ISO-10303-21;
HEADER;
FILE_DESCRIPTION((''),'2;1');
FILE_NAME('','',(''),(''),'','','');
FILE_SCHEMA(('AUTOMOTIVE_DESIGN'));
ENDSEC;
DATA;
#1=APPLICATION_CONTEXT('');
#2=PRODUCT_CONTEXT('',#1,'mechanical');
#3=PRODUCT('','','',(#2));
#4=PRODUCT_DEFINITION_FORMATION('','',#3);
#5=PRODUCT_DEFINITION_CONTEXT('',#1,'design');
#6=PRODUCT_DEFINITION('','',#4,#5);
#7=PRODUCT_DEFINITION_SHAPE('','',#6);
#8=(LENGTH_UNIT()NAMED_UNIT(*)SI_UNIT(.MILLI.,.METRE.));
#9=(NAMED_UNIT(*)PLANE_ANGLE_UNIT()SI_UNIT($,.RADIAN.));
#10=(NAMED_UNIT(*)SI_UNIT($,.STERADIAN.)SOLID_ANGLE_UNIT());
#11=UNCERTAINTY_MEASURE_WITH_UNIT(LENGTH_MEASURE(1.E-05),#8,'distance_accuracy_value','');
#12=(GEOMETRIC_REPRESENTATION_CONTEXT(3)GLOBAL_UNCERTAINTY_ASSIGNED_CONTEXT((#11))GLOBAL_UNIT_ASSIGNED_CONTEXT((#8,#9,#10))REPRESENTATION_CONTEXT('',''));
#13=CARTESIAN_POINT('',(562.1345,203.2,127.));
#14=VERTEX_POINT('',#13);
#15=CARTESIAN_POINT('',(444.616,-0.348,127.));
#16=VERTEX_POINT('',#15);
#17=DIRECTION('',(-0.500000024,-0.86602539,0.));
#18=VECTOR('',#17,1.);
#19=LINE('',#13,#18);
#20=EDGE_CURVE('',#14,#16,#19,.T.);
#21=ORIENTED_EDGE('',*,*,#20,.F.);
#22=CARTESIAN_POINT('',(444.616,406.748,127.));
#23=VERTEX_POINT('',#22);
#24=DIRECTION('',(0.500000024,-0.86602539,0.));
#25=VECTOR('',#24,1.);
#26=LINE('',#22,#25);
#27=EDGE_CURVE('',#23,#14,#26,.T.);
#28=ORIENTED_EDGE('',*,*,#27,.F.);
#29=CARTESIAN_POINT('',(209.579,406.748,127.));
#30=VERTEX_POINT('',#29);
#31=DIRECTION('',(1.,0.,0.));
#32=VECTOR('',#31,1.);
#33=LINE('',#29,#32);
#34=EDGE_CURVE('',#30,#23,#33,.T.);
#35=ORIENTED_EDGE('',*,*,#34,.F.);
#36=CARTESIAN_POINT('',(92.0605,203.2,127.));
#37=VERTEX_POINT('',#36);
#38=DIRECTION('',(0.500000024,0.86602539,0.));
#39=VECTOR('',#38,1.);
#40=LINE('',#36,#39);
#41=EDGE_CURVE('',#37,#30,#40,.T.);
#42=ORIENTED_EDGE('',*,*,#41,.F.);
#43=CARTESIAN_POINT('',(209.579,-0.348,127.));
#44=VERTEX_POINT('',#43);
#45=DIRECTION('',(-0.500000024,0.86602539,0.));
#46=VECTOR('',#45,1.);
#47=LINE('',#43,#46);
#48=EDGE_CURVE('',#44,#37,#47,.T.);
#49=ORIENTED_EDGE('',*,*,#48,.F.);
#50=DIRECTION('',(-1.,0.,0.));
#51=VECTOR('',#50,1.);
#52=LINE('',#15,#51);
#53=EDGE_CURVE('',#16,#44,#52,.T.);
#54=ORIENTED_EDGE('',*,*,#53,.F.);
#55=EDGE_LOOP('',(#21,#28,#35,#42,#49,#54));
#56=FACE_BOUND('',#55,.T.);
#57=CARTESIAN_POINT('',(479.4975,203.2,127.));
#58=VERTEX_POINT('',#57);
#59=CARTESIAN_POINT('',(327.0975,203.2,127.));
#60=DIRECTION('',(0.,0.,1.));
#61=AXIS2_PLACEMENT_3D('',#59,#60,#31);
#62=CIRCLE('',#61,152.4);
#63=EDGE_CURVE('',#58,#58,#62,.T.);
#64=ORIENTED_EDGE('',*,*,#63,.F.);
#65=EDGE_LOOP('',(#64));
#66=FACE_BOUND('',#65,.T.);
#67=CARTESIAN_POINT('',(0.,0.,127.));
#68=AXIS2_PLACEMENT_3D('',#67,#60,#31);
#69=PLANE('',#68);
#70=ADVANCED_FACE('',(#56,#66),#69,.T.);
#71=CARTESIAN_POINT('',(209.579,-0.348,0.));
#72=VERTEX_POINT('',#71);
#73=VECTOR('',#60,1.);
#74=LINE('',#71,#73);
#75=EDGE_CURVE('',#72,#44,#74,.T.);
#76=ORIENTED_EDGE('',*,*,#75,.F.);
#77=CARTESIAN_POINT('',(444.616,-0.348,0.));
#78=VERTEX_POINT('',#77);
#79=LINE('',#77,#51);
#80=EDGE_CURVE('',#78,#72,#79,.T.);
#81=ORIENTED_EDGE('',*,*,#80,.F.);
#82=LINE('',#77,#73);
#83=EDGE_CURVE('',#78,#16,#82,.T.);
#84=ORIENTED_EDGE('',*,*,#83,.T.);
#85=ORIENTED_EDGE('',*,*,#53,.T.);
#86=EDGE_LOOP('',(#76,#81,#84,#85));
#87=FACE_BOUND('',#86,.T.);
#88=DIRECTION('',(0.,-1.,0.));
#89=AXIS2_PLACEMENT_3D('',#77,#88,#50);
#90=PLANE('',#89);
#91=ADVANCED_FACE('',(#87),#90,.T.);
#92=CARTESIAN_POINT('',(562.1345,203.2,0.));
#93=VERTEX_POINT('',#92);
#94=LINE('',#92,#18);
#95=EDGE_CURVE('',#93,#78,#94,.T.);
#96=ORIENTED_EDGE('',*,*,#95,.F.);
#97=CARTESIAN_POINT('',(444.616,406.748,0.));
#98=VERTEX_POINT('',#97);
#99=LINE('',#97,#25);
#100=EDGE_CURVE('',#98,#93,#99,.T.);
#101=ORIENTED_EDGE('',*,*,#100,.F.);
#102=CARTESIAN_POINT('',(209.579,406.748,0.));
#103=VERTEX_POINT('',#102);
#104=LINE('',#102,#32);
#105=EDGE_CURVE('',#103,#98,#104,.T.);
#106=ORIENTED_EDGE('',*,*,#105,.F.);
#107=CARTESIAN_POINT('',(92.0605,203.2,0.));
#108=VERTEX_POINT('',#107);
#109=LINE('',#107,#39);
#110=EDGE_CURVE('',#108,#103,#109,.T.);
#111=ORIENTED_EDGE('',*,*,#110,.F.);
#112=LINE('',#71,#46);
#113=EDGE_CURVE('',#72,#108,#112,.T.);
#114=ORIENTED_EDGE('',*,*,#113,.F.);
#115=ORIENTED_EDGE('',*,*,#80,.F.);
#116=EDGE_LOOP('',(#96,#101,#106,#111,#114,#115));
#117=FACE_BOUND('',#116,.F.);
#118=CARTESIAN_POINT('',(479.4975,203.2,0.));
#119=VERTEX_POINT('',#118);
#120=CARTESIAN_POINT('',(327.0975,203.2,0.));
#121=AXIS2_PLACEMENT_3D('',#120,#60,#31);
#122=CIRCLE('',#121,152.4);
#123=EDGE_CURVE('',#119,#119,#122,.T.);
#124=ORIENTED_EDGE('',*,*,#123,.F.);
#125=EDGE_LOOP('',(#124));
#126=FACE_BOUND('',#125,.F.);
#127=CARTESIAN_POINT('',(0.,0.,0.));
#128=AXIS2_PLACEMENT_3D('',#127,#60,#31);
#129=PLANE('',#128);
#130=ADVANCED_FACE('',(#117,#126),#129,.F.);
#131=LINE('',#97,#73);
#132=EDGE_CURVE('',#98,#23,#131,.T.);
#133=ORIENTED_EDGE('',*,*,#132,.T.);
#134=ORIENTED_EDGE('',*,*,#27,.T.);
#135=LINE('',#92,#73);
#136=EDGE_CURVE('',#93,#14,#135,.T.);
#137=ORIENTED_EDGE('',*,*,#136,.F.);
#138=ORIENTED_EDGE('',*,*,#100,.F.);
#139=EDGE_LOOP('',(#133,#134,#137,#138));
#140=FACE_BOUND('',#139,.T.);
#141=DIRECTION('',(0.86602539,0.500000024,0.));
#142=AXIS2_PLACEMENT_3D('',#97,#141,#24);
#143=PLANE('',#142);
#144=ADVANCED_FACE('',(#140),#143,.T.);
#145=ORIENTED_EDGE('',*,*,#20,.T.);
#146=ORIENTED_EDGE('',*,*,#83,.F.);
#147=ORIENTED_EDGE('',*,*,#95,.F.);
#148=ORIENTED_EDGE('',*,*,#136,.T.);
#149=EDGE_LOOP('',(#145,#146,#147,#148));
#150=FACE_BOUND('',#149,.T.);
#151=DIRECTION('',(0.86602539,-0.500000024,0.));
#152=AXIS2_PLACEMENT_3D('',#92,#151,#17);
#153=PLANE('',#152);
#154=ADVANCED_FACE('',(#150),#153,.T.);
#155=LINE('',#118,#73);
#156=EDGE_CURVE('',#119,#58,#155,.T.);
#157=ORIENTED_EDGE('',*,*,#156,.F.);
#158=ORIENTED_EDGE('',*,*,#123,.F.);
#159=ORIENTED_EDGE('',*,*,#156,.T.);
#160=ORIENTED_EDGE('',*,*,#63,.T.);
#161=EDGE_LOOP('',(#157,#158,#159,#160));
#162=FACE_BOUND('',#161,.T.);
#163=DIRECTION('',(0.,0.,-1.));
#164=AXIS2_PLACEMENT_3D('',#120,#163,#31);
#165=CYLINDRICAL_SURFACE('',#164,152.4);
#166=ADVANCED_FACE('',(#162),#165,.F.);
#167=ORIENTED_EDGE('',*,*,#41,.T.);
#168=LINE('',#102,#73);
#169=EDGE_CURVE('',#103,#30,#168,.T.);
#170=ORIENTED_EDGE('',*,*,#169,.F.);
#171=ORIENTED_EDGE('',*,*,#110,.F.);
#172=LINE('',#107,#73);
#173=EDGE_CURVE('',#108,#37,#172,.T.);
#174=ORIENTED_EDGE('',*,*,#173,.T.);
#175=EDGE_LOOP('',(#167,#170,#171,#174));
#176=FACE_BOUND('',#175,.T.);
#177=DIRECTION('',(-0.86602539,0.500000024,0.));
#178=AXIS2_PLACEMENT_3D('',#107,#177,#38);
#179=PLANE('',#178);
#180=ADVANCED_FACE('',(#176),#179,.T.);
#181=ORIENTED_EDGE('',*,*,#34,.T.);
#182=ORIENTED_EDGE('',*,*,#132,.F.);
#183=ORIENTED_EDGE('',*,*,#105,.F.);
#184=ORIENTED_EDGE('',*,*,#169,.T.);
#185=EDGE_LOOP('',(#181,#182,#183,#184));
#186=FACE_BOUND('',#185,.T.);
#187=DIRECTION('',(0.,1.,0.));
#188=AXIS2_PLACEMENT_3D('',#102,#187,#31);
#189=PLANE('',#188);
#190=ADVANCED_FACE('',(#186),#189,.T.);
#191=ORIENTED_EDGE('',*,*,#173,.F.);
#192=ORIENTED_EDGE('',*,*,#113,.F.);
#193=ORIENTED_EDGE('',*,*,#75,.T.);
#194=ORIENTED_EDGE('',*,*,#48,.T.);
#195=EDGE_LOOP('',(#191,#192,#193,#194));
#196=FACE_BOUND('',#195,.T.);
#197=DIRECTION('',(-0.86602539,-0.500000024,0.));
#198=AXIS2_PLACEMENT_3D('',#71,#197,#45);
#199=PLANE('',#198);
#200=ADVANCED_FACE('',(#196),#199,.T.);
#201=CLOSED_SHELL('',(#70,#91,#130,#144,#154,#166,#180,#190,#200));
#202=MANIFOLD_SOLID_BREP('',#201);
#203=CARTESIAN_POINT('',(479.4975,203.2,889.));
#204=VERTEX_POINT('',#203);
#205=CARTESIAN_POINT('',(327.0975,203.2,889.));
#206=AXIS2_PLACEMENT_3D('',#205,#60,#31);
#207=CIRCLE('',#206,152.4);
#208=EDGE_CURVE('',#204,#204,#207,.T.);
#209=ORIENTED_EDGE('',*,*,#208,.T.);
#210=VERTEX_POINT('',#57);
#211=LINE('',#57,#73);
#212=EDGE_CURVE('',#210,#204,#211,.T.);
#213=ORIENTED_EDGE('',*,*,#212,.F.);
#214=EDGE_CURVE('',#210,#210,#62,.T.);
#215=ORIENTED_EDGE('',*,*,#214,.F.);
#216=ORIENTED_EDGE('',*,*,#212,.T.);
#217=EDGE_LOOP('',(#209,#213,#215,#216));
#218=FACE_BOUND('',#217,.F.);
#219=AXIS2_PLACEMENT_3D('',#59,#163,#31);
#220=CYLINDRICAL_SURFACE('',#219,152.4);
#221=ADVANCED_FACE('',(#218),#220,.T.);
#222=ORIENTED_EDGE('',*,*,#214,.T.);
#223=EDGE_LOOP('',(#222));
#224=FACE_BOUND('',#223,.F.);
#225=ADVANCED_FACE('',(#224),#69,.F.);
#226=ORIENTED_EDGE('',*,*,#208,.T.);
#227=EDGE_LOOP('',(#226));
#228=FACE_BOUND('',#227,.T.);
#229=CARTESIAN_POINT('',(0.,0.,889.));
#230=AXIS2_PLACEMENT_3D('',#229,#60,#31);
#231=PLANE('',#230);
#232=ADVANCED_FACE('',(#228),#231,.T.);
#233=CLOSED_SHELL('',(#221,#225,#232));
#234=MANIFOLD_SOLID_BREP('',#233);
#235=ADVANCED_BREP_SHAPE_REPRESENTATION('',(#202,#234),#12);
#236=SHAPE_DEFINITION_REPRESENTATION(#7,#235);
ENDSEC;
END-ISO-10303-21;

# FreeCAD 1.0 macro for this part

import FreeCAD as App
import Part
import Sketcher
from FreeCAD import Vector
Q = App.Units.Quantity


def add_polygon(sketch, points):
    """Adds a closed chain of lines whose ends are joined by coincident constraints."""
    first, n = sketch.GeometryCount, len(points)
    for a, b in zip(points, points[1:] + points[:1]):
        sketch.addGeometry(Part.LineSegment(App.Vector(*a, 0), App.Vector(*b, 0)), False)
    for i in range(n):
        sketch.addConstraint(Sketcher.Constraint("Coincident", first + i, 2, first + (i + 1) % n, 1))

doc = App.newDocument("Part")
params = doc.addObject("Spreadsheet::Sheet", "Params")
for row, (alias, value) in enumerate([
    ("sketch1_diameter", "12 in"),
    ("pad1_length", "5 in"),
    ("sketch2_diameter", "12 in"),
    ("pad2_length", "30 in"),
], start=1):
    params.set(f"A{row}", alias)
    params.set(f"B{row}", "=" + value)
    params.setAlias(f"B{row}", alias)

body = doc.addObject("PartDesign::Body", "Body")
body.AllowCompound = True

# Sketch on XY plane
sketch1 = doc.addObject("Sketcher::SketchObject", "Sketch")
body.addObject(sketch1)
sketch1.AttachmentSupport = (doc.XY_Plane, [""])
sketch1.MapMode = "FlatFace"
add_polygon(sketch1, [(444.616, -0.348), (562.1345, 203.2), (444.616, 406.748), (209.579, 406.748), (92.0605, 203.2), (209.579, -0.348)])  # lines 0-5
sketch1.addGeometry(Part.Circle(Vector(327.0975, 203.2, 0), Vector(0, 0, 1), 152.4), False)  # 6
sketch1.addConstraint([
    Sketcher.Constraint("Horizontal", 2),
    Sketcher.Constraint("Horizontal", 5),
    Sketcher.Constraint("Parallel", 0, 3),
    Sketcher.Constraint("Parallel", 1, 4),
    Sketcher.Constraint("Horizontal", 6, 3, 0, 2),
    Sketcher.Constraint("Horizontal", 0, 2, 3, 2),
    Sketcher.Constraint("Vertical", 2, 2, 4, 2),
    Sketcher.Constraint("Vertical", 1, 2, 5, 2),
    Sketcher.Constraint("Diameter", 6, Q("12 in")),
    Sketcher.Constraint("DistanceY", -1, 1, 6, 3, Q("8 in")),
    Sketcher.Constraint("Angle", 0, Q("60 deg")),
    Sketcher.Constraint("DistanceX", 2, 2, 2, 1, 235.037),
    Sketcher.Constraint("DistanceY", -1, 1, 1, 2, Q("16.0137 in")),
    Sketcher.Constraint("DistanceX", -1, 1, 6, 3, 327.0975),
    Sketcher.Constraint("DistanceX", -1, 1, 0, 2, 562.1345),
])
sketch1.setExpression("Constraints[14]", "Params.sketch1_diameter")
pad1 = doc.addObject("PartDesign::Pad", "Pad")
body.addObject(pad1)
pad1.Profile = sketch1
pad1.setExpression("Length", "Params.pad1_length")

# Sketch on XY plane
sketch2 = doc.addObject("Sketcher::SketchObject", "Sketch001")
body.addObject(sketch2)
sketch2.AttachmentSupport = (doc.XY_Plane, [""])
sketch2.MapMode = "FlatFace"
sketch2.AttachmentOffset = App.Placement(Vector(0, 0, 5 * 25.4), App.Rotation())
sketch2.addGeometry(Part.Circle(Vector(327.0975, 203.2, 0), Vector(0, 0, 1), 152.4), False)
sketch2.addConstraint([
    Sketcher.Constraint("Diameter", 0, Q("12 in")),
    Sketcher.Constraint("DistanceY", -1, 1, 0, 3, Q("8 in")),
    Sketcher.Constraint("DistanceX", -1, 1, 0, 3, 327.0975),
])
sketch2.setExpression("Constraints[0]", "Params.sketch2_diameter")
pad2 = doc.addObject("PartDesign::Pad", "Pad001")
body.addObject(pad2)
pad2.Profile = sketch2
pad2.setExpression("Length", "Params.pad2_length")

doc.recompute()
